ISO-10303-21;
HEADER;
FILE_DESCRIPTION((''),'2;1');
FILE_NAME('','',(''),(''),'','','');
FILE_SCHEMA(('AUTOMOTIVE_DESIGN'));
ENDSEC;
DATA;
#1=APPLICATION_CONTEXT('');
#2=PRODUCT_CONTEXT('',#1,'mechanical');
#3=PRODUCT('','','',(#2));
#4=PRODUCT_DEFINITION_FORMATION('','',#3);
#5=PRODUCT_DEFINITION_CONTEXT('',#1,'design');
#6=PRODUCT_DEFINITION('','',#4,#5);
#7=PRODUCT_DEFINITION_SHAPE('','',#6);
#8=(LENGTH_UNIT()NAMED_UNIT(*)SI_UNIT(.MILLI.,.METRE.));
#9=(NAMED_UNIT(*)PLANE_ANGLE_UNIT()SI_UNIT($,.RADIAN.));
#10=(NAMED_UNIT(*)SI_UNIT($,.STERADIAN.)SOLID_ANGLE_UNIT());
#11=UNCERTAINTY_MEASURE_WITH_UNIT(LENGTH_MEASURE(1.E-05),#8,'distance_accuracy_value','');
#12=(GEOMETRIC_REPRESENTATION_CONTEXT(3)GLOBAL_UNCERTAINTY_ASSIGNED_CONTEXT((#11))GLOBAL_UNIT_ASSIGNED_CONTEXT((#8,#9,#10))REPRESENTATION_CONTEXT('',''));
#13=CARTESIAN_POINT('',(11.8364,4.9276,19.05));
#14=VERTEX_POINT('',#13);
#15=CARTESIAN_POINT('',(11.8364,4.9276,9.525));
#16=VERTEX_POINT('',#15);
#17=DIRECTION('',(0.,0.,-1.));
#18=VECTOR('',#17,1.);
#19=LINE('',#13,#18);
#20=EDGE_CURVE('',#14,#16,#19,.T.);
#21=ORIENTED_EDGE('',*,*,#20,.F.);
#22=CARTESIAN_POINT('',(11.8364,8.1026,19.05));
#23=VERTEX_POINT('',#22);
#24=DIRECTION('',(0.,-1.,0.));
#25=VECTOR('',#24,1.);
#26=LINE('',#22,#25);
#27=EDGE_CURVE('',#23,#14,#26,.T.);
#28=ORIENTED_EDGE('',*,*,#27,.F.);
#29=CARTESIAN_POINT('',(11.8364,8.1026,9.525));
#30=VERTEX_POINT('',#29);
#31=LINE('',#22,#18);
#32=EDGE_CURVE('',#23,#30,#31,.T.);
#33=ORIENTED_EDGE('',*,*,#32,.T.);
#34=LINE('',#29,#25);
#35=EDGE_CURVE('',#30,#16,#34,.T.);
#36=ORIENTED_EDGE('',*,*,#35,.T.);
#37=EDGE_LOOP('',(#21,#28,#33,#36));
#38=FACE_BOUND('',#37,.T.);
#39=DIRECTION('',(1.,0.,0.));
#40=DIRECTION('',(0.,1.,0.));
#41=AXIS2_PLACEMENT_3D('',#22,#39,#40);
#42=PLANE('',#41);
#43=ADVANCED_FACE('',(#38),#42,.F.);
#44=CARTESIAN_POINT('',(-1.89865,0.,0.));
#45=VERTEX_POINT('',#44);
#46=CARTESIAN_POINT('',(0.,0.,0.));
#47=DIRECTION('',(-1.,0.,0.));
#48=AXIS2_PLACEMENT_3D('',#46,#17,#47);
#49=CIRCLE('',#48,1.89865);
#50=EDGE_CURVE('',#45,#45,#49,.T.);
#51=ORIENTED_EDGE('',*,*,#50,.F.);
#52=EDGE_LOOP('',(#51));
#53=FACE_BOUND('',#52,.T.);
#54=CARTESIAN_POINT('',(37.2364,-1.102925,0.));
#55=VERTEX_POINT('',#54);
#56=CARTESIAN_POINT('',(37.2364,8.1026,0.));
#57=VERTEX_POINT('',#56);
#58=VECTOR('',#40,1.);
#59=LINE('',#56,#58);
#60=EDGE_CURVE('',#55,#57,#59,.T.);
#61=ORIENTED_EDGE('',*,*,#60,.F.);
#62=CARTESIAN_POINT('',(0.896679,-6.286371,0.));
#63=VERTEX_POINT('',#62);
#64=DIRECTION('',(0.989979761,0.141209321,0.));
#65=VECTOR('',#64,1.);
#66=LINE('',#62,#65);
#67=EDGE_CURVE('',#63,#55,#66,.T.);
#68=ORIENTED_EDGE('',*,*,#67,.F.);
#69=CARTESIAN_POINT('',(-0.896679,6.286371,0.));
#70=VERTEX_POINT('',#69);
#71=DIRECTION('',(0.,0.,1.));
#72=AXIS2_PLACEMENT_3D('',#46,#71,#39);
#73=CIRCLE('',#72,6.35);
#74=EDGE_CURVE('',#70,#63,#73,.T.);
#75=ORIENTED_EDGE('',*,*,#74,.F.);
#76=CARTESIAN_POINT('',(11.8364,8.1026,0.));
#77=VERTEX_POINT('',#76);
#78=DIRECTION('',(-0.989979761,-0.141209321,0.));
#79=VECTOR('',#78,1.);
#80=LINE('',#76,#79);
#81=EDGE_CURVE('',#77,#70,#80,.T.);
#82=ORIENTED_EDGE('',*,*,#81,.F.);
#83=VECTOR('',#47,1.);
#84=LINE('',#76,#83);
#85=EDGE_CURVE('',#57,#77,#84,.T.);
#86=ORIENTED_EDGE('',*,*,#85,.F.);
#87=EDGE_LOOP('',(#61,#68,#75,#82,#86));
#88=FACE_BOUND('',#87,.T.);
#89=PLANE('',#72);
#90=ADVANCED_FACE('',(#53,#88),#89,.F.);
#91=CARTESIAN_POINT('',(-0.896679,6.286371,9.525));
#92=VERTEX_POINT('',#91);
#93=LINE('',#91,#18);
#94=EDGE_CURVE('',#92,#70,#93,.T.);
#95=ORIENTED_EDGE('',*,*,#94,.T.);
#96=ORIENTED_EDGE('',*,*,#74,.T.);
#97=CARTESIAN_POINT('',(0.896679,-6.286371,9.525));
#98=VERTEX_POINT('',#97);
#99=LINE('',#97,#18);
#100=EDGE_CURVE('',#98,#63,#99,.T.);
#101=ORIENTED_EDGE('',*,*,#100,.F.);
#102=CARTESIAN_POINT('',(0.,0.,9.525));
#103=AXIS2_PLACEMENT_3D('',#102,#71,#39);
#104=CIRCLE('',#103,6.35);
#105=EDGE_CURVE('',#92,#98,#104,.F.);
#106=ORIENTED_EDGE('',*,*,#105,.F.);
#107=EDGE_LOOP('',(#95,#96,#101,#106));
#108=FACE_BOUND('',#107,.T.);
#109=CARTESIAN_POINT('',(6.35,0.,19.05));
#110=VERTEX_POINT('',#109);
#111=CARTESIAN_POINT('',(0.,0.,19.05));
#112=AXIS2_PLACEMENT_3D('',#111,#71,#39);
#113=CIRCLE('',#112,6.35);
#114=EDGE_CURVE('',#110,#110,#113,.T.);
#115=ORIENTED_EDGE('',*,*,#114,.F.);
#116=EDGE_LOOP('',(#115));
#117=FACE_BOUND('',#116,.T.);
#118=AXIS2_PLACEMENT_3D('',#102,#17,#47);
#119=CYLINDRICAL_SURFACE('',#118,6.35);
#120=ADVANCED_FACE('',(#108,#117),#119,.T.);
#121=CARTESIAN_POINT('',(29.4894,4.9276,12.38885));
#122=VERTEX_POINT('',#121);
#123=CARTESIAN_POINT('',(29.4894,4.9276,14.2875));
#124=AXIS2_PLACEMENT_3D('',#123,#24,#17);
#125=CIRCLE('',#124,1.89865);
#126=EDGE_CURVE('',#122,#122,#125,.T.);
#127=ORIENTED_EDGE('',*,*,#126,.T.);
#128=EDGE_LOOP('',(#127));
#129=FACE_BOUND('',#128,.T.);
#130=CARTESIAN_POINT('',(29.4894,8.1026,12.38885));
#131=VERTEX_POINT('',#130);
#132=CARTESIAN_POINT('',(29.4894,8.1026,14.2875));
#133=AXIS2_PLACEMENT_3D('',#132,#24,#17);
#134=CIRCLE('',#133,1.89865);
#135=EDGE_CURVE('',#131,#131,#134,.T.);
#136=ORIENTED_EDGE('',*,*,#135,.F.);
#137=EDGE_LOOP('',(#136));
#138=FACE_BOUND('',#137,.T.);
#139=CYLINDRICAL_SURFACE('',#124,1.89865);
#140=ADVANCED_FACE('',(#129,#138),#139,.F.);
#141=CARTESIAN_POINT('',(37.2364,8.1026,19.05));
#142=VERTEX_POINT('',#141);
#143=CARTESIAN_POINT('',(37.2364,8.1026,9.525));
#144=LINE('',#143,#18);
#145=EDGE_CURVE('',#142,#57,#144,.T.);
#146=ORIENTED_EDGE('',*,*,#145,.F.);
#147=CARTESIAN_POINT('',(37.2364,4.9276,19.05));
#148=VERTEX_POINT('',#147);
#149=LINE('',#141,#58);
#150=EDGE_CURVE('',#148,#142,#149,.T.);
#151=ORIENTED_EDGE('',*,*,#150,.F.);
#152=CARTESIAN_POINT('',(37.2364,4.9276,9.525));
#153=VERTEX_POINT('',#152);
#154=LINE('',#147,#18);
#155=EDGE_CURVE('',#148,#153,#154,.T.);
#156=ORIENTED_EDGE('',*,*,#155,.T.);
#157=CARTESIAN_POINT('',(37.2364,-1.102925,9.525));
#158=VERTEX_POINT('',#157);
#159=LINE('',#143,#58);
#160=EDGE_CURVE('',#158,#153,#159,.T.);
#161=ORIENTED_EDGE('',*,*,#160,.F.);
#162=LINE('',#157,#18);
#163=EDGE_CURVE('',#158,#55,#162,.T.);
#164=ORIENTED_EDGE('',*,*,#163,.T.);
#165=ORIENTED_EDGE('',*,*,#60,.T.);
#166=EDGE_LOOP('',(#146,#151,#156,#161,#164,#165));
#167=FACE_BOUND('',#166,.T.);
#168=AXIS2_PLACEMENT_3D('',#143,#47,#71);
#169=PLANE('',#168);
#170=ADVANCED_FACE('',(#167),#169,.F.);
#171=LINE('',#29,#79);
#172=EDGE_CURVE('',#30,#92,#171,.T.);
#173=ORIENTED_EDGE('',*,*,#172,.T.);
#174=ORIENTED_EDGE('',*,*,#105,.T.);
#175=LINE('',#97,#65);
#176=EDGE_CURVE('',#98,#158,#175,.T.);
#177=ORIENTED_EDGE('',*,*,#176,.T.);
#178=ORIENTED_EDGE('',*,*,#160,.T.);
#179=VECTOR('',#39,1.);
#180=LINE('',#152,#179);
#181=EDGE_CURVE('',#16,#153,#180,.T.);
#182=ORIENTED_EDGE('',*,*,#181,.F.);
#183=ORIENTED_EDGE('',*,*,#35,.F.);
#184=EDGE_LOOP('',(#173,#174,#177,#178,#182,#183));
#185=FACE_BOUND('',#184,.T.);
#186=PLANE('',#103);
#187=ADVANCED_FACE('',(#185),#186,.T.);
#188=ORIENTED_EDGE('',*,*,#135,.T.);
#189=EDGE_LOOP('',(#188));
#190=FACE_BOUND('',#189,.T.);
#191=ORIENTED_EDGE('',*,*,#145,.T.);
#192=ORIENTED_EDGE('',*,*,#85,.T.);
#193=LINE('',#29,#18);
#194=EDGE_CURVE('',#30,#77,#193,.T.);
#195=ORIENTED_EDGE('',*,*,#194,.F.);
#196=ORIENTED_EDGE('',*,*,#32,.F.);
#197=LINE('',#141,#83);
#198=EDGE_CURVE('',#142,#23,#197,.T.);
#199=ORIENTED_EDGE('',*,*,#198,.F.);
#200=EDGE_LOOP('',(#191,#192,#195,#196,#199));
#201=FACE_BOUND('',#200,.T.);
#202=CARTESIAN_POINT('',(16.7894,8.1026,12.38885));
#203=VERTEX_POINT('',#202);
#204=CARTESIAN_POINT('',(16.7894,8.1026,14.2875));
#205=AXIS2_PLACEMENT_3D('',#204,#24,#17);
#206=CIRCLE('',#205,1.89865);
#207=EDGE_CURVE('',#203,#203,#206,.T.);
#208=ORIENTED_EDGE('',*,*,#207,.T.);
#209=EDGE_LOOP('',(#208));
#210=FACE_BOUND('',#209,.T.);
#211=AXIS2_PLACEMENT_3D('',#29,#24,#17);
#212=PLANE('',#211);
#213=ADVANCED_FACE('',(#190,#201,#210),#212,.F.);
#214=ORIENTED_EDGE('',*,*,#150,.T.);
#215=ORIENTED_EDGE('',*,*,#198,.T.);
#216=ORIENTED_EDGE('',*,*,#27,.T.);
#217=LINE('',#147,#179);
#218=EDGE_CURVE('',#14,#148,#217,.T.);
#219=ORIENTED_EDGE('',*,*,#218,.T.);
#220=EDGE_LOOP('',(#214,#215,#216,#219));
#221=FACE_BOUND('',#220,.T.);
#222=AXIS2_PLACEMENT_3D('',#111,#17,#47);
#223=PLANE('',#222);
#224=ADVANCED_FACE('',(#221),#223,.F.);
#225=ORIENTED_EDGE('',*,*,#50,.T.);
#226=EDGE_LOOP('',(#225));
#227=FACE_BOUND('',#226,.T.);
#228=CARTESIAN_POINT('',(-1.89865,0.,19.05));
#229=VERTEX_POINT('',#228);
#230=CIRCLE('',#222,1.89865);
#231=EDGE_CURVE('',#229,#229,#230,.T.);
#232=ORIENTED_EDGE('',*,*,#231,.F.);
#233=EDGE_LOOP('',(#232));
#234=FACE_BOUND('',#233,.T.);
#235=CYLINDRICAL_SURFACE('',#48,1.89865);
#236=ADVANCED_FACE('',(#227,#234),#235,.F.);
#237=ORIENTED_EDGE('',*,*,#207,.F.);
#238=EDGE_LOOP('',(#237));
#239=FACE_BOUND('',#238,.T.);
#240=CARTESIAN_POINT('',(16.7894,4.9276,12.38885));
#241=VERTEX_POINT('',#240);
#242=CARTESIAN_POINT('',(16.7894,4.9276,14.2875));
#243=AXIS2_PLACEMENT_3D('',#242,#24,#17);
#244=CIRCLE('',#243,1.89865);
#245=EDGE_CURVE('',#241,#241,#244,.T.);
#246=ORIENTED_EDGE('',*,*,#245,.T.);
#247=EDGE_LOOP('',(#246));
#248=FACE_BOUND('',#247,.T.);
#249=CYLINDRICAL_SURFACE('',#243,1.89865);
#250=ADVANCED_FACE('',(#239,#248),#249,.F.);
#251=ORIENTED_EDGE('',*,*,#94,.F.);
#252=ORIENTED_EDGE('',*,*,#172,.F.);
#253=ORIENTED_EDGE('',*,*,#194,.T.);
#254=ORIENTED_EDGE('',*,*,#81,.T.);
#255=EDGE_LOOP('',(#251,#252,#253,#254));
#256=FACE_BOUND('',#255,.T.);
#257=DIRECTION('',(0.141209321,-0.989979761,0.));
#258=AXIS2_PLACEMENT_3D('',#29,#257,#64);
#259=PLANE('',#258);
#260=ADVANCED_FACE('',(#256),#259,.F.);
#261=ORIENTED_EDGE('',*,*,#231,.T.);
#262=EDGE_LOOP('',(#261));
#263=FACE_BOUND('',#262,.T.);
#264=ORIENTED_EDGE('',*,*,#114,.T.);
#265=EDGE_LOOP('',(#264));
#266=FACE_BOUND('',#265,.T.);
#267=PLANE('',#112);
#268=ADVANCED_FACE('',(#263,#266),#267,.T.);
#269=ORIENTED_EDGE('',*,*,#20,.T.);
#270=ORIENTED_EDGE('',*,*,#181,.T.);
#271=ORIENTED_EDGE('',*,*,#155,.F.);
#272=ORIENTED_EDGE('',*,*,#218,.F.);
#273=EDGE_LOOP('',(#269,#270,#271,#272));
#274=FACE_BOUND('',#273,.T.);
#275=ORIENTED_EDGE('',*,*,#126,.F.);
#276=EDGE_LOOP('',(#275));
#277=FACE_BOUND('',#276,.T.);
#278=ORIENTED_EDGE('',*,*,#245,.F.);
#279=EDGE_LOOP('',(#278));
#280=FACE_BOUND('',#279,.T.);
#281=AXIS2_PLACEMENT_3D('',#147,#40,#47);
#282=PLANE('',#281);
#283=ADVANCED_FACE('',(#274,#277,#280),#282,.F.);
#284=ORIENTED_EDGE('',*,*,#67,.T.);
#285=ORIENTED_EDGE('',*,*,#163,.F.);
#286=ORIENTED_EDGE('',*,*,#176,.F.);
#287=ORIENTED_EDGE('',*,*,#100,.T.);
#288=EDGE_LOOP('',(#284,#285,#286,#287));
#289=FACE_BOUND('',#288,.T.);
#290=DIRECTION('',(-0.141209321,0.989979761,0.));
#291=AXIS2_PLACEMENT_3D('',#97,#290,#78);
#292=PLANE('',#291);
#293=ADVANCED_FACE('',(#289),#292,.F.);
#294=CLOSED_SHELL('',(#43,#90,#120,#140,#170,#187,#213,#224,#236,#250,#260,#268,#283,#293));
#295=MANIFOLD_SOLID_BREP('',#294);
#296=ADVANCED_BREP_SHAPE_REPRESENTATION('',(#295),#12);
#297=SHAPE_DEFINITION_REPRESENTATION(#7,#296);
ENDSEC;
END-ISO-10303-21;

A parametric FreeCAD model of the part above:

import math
import FreeCAD as App
import Part
import Sketcher

V = App.Vector
Q = App.Units.Quantity


def add_polygon(sketch, points):
    """Adds a closed chain of lines whose ends are joined by coincident constraints."""
    first, n = sketch.GeometryCount, len(points)
    for a, b in zip(points, points[1:] + points[:1]):
        sketch.addGeometry(Part.LineSegment(App.Vector(*a, 0), App.Vector(*b, 0)), False)
    for i in range(n):
        sketch.addConstraint(Sketcher.Constraint("Coincident", first + i, 2, first + (i + 1) % n, 1))

doc = App.newDocument("Part")
body = doc.addObject("PartDesign::Body", "Body")

# Sketch on XY plane
sketch1 = doc.addObject("Sketcher::SketchObject", "Sketch")
body.addObject(sketch1)
sketch1.AttachmentSupport = (doc.XY_Plane, [""])
sketch1.MapMode = "FlatFace"
sketch1.addGeometry(Part.LineSegment(V(11.8364, 8.1026, 0), V(-0.896679, 6.286371, 0)), False)
sketch1.addGeometry(Part.ArcOfCircle(Part.Circle(V(0, 0, 0), V(0, 0, 1), 6.35), math.radians(98.117831), math.radians(278.117831)), False)
sketch1.addGeometry(Part.LineSegment(V(0.896679, -6.286371, 0), V(37.2364, -1.102925, 0)), False)
sketch1.addGeometry(Part.LineSegment(V(37.2364, -1.102925, 0), V(37.2364, 8.1026, 0)), False)
sketch1.addGeometry(Part.LineSegment(V(37.2364, 8.1026, 0), V(11.8364, 8.1026, 0)), False)
sketch1.addConstraint(Sketcher.Constraint("Tangent", 0, 2, 1, 1))
sketch1.addConstraint(Sketcher.Constraint("Tangent", 1, 2, 2, 1))
sketch1.addConstraint(Sketcher.Constraint("Coincident", 2, 2, 3, 1))
sketch1.addConstraint(Sketcher.Constraint("Coincident", 3, 2, 4, 1))
sketch1.addConstraint(Sketcher.Constraint("Coincident", 4, 2, 0, 1))
sketch1.addConstraint(Sketcher.Constraint("Vertical", 3))
sketch1.addConstraint(Sketcher.Constraint("Horizontal", 4))
sketch1.addConstraint(Sketcher.Constraint("Coincident", 1, 3, -1, 1))
sketch1.addConstraint(Sketcher.Constraint("Parallel", 0, 2))
sketch1.addConstraint(Sketcher.Constraint("DistanceX", 4, 2, 4, 1, Q("1 in")))
sketch1.addConstraint(Sketcher.Constraint("Radius", 1, Q("0.25 in")))
sketch1.addConstraint(Sketcher.Constraint("DistanceX", -1, 1, 2, 2, Q("1.466 in")))
sketch1.addConstraint(Sketcher.Constraint("DistanceY", -1, 1, 3, 2, Q("0.319 in")))
pad1 = doc.addObject("PartDesign::Pad", "Pad")
body.addObject(pad1)
pad1.Profile = sketch1
pad1.Length = Q("0.375 in")

# Sketch on XY plane
sketch2 = doc.addObject("Sketcher::SketchObject", "Sketch001")
body.addObject(sketch2)
sketch2.AttachmentSupport = (doc.XY_Plane, [""])
sketch2.MapMode = "FlatFace"
sketch2.AttachmentOffset = App.Placement(V(0, 0, 0.375 * 25.4), App.Rotation())
sketch2.addGeometry(Part.Circle(V(0, 0, 0), V(0, 0, 1), 6.35), False)  # 0
add_polygon(sketch2, [(11.8364, 8.1026), (11.8364, 4.9276), (37.2364, 4.9276), (37.2364, 8.1026)])  # lines 1-4
sketch2.addConstraint(Sketcher.Constraint("Vertical", 1))
sketch2.addConstraint(Sketcher.Constraint("Horizontal", 2))
sketch2.addConstraint(Sketcher.Constraint("Vertical", 3))
sketch2.addConstraint(Sketcher.Constraint("Horizontal", 4))
sketch2.addConstraint(Sketcher.Constraint("Coincident", 0, 3, -1, 1))
sketch2.addConstraint(Sketcher.Constraint("Diameter", 0, Q("0.5 in")))
sketch2.addConstraint(Sketcher.Constraint("DistanceX", 2, 1, 2, 2, Q("1 in")))
sketch2.addConstraint(Sketcher.Constraint("DistanceY", 1, 2, 1, 1, Q("0.125 in")))
sketch2.addConstraint(Sketcher.Constraint("DistanceX", -1, 1, 1, 2, Q("0.466 in")))
sketch2.addConstraint(Sketcher.Constraint("DistanceY", -1, 1, 1, 2, Q("0.194 in")))
pad2 = doc.addObject("PartDesign::Pad", "Pad001")
body.addObject(pad2)
pad2.Profile = sketch2
pad2.Length = Q("0.375 in")

# Sketch on XY plane
sketch3 = doc.addObject("Sketcher::SketchObject", "Sketch002")
body.addObject(sketch3)
sketch3.AttachmentSupport = (doc.XY_Plane, [""])
sketch3.MapMode = "FlatFace"
sketch3.addGeometry(Part.Circle(V(0, 0, 0), V(0, 0, 1), 1.89865), False)
sketch3.addConstraint(Sketcher.Constraint("Coincident", 0, 3, -1, 1))
sketch3.addConstraint(Sketcher.Constraint("Diameter", 0, Q("0.1495 in")))
doc.recompute()
hole = doc.addObject("PartDesign::Hole", "Hole")
body.addObject(hole)
hole.Profile = sketch3
hole.ThreadType = "None"
hole.Diameter = Q("0.1495 in")
hole.DepthType = "ThroughAll"
hole.Reversed = True

# Sketch on XZ plane
sketch4 = doc.addObject("Sketcher::SketchObject", "Sketch003")
body.addObject(sketch4)
sketch4.AttachmentSupport = (doc.XZ_Plane, [""])
sketch4.MapMode = "FlatFace"
sketch4.AttachmentOffset = App.Placement(V(0, 0, -0.194 * 25.4), App.Rotation())
sketch4.addGeometry(Part.Circle(V(16.7894, 14.2875, 0), V(0, 0, 1), 1.89865), False)
sketch4.addGeometry(Part.Circle(V(29.4894, 14.2875, 0), V(0, 0, 1), 1.89865), False)
sketch4.addConstraint(Sketcher.Constraint("Equal", 0, 1))
sketch4.addConstraint(Sketcher.Constraint("Horizontal", 0, 3, 1, 3))
sketch4.addConstraint(Sketcher.Constraint("Diameter", 0, Q("0.1495 in")))
sketch4.addConstraint(Sketcher.Constraint("DistanceX", 0, 3, 1, 3, Q("0.5 in")))
sketch4.addConstraint(Sketcher.Constraint("DistanceX", -1, 1, 0, 3, Q("0.661 in")))
sketch4.addConstraint(Sketcher.Constraint("DistanceY", -1, 1, 0, 3, Q("0.5625 in")))
doc.recompute()
hole2 = doc.addObject("PartDesign::Hole", "Hole001")
body.addObject(hole2)
hole2.Profile = sketch4
hole2.ThreadType = "None"
hole2.Diameter = Q("0.1495 in")
hole2.DepthType = "ThroughAll"

doc.recompute()
